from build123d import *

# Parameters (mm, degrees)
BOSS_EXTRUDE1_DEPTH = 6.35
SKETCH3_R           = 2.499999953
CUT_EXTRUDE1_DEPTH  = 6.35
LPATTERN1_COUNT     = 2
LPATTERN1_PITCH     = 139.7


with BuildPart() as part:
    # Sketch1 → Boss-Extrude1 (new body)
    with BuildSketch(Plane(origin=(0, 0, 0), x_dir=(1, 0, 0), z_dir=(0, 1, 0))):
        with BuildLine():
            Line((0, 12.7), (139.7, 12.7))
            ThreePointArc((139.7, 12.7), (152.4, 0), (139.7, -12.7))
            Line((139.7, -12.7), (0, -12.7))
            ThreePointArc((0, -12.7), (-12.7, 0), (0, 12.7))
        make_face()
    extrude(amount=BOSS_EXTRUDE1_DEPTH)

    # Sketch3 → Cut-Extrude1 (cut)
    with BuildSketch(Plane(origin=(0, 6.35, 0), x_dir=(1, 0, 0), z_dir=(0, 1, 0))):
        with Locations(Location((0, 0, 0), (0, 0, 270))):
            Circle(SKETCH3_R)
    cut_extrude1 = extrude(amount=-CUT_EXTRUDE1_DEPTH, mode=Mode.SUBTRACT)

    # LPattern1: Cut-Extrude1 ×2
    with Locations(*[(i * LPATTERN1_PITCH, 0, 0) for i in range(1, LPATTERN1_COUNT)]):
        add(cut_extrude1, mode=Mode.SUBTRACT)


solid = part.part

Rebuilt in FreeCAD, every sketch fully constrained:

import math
import FreeCAD as App
import Part
import Sketcher
from FreeCAD import Vector
Q = App.Units.Quantity

doc = App.newDocument("Part")
body = doc.addObject("PartDesign::Body", "Body")

# Sketch on XZ plane
sketch1 = doc.addObject("Sketcher::SketchObject", "Sketch")
body.addObject(sketch1)
sketch1.AttachmentSupport = (doc.XZ_Plane, [""])
sketch1.MapMode = "FlatFace"
sketch1.addGeometry([
    Part.LineSegment(Vector(140, -13, 0), Vector(0, -13, 0)),
    Part.ArcOfCircle(Part.Circle(Vector(0, 0, 0), Vector(0, 0, 1), 13), math.radians(90), math.radians(270)),
    Part.LineSegment(Vector(0, 13, 0), Vector(140, 13, 0)),
    Part.ArcOfCircle(Part.Circle(Vector(140, 0, 0), Vector(0, 0, 1), 13), math.radians(-90), math.radians(90)),
], False)
sketch1.addConstraint([
    Sketcher.Constraint("Tangent", 0, 2, 1, 2),
    Sketcher.Constraint("Tangent", 1, 1, 2, 1),
    Sketcher.Constraint("Tangent", 2, 2, 3, 2),
    Sketcher.Constraint("Tangent", 3, 1, 0, 1),
    Sketcher.Constraint("Horizontal", 0),
    Sketcher.Constraint("Horizontal", 2),
    Sketcher.Constraint("Coincident", 1, 3, -1, 1),
    Sketcher.Constraint("Radius", 1, Q("0.5 in")),
    Sketcher.Constraint("DistanceX", 0, 2, 0, 1, Q("5.5 in")),
])
pad1 = doc.addObject("PartDesign::Pad", "Pad")
body.addObject(pad1)
pad1.Profile = sketch1
pad1.Length = Q("0.25 in")
pad1.Reversed = True

# Sketch on XZ plane
sketch2 = doc.addObject("Sketcher::SketchObject", "Sketch001")
body.addObject(sketch2)
sketch2.AttachmentSupport = (doc.XZ_Plane, [""])
sketch2.MapMode = "FlatFace"
sketch2.AttachmentOffset = App.Placement(Vector(0, 0, -0.25 * 25.4), App.Rotation())
sketch2.addGeometry(Part.Circle(Vector(0, 0, 0), Vector(0, 0, 1), 2.5), False)
sketch2.addConstraint([
    Sketcher.Constraint("Coincident", 0, 3, -1, 1),
    Sketcher.Constraint("Diameter", 0, Q("5 mm")),
])
pocket1 = doc.addObject("PartDesign::Pocket", "Pocket")
body.addObject(pocket1)
pocket1.Profile = sketch2
pocket1.Length = Q("0.25 in")
pocket1.Reversed = True
doc.recompute()

linearpattern = doc.addObject("PartDesign::LinearPattern", "LinearPattern")
body.addObject(linearpattern)
linearpattern.Originals = [pocket1]
linearpattern.Direction = (doc.X_Axis, [""])
linearpattern.Mode = "offset"
linearpattern.Offset = Q("5.5 in")
linearpattern.Occurrences = 2
body.Tip = linearpattern

doc.recompute()
